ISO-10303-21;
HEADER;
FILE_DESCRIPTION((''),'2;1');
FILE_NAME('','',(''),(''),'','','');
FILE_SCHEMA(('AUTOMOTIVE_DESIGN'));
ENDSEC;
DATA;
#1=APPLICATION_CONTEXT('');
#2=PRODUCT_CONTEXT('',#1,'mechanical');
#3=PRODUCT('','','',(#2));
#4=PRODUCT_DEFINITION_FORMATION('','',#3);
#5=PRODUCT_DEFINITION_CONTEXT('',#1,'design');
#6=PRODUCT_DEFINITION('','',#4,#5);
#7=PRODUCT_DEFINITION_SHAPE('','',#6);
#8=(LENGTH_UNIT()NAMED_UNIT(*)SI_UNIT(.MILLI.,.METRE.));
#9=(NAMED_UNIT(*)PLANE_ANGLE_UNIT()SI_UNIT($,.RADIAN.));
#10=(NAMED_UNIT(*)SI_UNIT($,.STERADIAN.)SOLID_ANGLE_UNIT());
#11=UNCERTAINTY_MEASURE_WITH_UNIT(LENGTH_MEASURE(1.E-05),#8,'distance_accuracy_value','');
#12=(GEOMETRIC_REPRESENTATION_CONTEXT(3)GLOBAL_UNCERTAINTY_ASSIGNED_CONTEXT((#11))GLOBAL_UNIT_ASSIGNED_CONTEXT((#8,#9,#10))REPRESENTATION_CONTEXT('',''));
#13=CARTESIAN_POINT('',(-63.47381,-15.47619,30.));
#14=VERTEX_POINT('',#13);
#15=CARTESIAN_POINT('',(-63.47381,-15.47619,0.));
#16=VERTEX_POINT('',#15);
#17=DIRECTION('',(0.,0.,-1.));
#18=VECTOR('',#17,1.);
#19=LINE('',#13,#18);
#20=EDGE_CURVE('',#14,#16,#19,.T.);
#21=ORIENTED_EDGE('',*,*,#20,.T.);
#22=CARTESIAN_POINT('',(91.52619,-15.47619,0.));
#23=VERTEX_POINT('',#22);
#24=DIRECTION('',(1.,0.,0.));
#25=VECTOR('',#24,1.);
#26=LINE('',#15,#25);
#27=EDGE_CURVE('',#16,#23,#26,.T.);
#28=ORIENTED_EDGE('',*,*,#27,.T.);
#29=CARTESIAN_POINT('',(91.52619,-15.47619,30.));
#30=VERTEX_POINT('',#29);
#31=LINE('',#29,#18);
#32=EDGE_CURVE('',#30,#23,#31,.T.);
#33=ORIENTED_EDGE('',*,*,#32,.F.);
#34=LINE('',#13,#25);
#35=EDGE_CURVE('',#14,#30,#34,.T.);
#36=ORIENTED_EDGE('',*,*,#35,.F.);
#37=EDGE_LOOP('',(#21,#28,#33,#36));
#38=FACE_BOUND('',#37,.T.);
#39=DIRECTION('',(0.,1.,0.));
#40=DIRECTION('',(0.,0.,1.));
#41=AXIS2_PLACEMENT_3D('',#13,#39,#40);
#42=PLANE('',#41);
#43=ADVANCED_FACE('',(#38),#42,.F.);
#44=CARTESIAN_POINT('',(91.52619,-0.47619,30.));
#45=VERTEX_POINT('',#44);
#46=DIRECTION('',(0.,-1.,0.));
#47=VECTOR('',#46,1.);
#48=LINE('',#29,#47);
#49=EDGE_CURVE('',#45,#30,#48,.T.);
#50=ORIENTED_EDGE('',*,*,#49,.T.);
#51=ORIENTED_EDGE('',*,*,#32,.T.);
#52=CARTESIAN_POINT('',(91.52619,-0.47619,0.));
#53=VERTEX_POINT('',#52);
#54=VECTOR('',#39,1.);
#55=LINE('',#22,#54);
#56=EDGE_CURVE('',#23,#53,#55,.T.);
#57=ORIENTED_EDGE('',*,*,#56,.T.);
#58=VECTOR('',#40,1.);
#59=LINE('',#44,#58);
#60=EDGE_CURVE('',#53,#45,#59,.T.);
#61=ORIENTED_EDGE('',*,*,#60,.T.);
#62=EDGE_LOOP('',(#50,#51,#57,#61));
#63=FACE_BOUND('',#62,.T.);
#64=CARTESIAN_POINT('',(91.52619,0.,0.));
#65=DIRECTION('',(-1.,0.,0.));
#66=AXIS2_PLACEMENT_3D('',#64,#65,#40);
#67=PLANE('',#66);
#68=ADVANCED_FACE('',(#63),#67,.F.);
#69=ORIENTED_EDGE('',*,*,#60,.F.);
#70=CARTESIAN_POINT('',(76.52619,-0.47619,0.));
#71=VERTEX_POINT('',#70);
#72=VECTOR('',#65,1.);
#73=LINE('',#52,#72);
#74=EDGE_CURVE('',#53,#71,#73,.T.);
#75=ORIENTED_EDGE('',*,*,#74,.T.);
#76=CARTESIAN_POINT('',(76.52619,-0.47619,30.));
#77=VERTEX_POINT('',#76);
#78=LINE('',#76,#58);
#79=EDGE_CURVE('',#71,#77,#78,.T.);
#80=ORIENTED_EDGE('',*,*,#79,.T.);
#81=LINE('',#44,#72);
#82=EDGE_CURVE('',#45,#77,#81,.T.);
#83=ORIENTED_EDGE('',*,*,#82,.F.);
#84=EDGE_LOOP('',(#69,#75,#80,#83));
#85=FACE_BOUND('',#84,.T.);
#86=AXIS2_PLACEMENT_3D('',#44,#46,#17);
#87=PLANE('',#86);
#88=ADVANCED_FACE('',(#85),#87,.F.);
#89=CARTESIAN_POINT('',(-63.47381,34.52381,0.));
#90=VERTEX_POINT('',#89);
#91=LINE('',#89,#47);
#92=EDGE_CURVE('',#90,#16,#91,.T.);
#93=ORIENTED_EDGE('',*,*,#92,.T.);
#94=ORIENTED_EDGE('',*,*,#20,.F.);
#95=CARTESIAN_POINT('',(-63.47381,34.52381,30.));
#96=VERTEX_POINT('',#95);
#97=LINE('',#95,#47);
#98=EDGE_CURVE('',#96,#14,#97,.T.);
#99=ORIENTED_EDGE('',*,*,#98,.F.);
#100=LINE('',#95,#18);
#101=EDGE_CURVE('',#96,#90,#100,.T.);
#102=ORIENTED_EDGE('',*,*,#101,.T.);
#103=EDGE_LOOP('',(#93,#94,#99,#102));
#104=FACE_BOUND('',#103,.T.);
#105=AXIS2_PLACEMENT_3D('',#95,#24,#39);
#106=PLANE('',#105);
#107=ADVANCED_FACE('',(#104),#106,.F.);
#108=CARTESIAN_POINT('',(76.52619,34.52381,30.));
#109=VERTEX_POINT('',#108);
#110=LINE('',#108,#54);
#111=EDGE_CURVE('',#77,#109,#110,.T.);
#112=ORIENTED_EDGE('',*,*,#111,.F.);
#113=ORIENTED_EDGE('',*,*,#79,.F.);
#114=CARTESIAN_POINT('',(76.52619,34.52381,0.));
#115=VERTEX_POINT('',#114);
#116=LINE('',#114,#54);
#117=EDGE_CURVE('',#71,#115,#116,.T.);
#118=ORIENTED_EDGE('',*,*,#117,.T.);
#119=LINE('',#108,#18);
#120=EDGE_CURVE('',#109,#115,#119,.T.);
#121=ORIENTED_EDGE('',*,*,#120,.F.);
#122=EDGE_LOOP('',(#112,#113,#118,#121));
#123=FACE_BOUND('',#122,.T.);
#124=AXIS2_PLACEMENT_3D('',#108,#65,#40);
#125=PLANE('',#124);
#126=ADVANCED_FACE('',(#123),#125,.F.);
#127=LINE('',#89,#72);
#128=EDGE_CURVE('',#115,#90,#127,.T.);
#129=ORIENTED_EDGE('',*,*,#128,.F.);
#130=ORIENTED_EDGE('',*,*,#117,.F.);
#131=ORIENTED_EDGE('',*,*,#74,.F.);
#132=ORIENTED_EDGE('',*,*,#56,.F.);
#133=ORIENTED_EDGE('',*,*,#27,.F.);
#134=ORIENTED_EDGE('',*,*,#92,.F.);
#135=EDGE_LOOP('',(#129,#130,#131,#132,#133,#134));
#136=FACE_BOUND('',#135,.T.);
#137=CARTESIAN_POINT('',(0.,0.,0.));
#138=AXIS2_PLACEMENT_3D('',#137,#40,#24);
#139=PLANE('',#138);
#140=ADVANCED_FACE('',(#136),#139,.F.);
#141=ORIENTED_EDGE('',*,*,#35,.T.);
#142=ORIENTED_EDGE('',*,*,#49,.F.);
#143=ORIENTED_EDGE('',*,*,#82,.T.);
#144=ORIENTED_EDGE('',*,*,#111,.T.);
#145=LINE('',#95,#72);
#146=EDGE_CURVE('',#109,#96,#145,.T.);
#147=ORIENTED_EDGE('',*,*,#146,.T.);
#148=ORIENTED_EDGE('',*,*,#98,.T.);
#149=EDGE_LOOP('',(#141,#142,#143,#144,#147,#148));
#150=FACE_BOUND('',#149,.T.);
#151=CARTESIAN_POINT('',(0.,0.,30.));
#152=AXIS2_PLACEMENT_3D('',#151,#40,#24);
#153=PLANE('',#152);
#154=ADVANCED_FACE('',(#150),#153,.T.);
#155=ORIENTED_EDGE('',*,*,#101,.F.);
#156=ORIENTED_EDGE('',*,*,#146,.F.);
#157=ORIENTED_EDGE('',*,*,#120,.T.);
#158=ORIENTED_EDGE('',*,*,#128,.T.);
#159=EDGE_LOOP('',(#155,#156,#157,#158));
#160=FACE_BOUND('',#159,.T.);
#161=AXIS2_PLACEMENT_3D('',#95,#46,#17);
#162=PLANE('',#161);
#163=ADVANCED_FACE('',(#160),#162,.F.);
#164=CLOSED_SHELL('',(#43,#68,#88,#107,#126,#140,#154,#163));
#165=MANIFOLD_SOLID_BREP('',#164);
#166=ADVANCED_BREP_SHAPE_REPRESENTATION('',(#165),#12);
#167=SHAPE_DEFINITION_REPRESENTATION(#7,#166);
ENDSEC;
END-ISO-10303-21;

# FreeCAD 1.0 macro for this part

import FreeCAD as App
import Part
import Sketcher

doc = App.newDocument("Part")
params = doc.addObject("Spreadsheet::Sheet", "Params")
for row, (alias, value) in enumerate([
    ("sketch1_width", "140 mm"),
    ("sketch1_height", "50 mm"),
    ("pad1_length", "30 mm"),
    ("sketch2_width", "15 mm"),
    ("sketch2_height", "30 mm"),
    ("pad2_length", "15 mm"),
], start=1):
    params.set(f"A{row}", alias)
    params.set(f"B{row}", "=" + value)
    params.setAlias(f"B{row}", alias)

body = doc.addObject("PartDesign::Body", "Body")

sketch1 = body.newObject("Sketcher::SketchObject", "Sketch")
sketch1.AttachmentSupport = (doc.getObject("XY_Plane"), [""])
sketch1.MapMode = "FlatFace"
sketch1.addGeometry(Part.LineSegment(App.Vector(-63, 35, 0), App.Vector(-63, -15, 0)), False)
sketch1.addGeometry(Part.LineSegment(App.Vector(-63, -15, 0), App.Vector(77, -15, 0)), False)
sketch1.addGeometry(Part.LineSegment(App.Vector(77, -15, 0), App.Vector(77, 35, 0)), False)
sketch1.addGeometry(Part.LineSegment(App.Vector(77, 35, 0), App.Vector(-63, 35, 0)), False)
sketch1.addConstraint(Sketcher.Constraint("Coincident", 0, 2, 1, 1))
sketch1.addConstraint(Sketcher.Constraint("Coincident", 1, 2, 2, 1))
sketch1.addConstraint(Sketcher.Constraint("Coincident", 2, 2, 3, 1))
sketch1.addConstraint(Sketcher.Constraint("Coincident", 3, 2, 0, 1))
sketch1.addConstraint(Sketcher.Constraint("Vertical", 0))
sketch1.addConstraint(Sketcher.Constraint("Horizontal", 1))
sketch1.addConstraint(Sketcher.Constraint("Vertical", 2))
sketch1.addConstraint(Sketcher.Constraint("Horizontal", 3))
sketch1.addConstraint(Sketcher.Constraint("DistanceX", 1, 1, 1, 2, 140.0))
sketch1.addConstraint(Sketcher.Constraint("DistanceY", 0, 2, 0, 1, 50.0))
sketch1.addConstraint(Sketcher.Constraint("DistanceX", 0, 2, -1, 1, 63.47381))
sketch1.addConstraint(Sketcher.Constraint("DistanceY", 0, 2, -1, 1, 15.47619))
sketch1.setExpression("Constraints[8]", "Params.sketch1_width")
sketch1.setExpression("Constraints[9]", "Params.sketch1_height")
pad1 = body.newObject("PartDesign::Pad", "Pad")
pad1.Profile = sketch1
pad1.setExpression("Length", "Params.pad1_length")

sketch2 = body.newObject("Sketcher::SketchObject", "Sketch001")
sketch2.AttachmentSupport = (doc.getObject("YZ_Plane"), [""])
sketch2.MapMode = "FlatFace"
sketch2.AttachmentOffset = App.Placement(App.Vector(0, 0, 76.52619), App.Rotation())
sketch2.addGeometry(Part.LineSegment(App.Vector(0, 30, 0), App.Vector(-15, 30, 0)), False)
sketch2.addGeometry(Part.LineSegment(App.Vector(-15, 30, 0), App.Vector(-15, 0, 0)), False)
sketch2.addGeometry(Part.LineSegment(App.Vector(-15, 0, 0), App.Vector(0, 0, 0)), False)
sketch2.addGeometry(Part.LineSegment(App.Vector(0, 0, 0), App.Vector(0, 30, 0)), False)
sketch2.addConstraint(Sketcher.Constraint("Coincident", 0, 2, 1, 1))
sketch2.addConstraint(Sketcher.Constraint("Coincident", 1, 2, 2, 1))
sketch2.addConstraint(Sketcher.Constraint("Coincident", 2, 2, 3, 1))
sketch2.addConstraint(Sketcher.Constraint("Coincident", 3, 2, 0, 1))
sketch2.addConstraint(Sketcher.Constraint("Horizontal", 0))
sketch2.addConstraint(Sketcher.Constraint("Vertical", 1))
sketch2.addConstraint(Sketcher.Constraint("Horizontal", 2))
sketch2.addConstraint(Sketcher.Constraint("Vertical", 3))
sketch2.addConstraint(Sketcher.Constraint("PointOnObject", 1, 2, -1))
sketch2.addConstraint(Sketcher.Constraint("DistanceX", 0, 2, 0, 1, 15.0))
sketch2.addConstraint(Sketcher.Constraint("DistanceY", 1, 2, 1, 1, 30.0))
sketch2.addConstraint(Sketcher.Constraint("DistanceX", 0, 2, -1, 1, 15.47619))
sketch2.setExpression("Constraints[9]", "Params.sketch2_width")
sketch2.setExpression("Constraints[10]", "Params.sketch2_height")
pad2 = body.newObject("PartDesign::Pad", "Pad001")
pad2.Profile = sketch2
pad2.setExpression("Length", "Params.pad2_length")

doc.recompute()
